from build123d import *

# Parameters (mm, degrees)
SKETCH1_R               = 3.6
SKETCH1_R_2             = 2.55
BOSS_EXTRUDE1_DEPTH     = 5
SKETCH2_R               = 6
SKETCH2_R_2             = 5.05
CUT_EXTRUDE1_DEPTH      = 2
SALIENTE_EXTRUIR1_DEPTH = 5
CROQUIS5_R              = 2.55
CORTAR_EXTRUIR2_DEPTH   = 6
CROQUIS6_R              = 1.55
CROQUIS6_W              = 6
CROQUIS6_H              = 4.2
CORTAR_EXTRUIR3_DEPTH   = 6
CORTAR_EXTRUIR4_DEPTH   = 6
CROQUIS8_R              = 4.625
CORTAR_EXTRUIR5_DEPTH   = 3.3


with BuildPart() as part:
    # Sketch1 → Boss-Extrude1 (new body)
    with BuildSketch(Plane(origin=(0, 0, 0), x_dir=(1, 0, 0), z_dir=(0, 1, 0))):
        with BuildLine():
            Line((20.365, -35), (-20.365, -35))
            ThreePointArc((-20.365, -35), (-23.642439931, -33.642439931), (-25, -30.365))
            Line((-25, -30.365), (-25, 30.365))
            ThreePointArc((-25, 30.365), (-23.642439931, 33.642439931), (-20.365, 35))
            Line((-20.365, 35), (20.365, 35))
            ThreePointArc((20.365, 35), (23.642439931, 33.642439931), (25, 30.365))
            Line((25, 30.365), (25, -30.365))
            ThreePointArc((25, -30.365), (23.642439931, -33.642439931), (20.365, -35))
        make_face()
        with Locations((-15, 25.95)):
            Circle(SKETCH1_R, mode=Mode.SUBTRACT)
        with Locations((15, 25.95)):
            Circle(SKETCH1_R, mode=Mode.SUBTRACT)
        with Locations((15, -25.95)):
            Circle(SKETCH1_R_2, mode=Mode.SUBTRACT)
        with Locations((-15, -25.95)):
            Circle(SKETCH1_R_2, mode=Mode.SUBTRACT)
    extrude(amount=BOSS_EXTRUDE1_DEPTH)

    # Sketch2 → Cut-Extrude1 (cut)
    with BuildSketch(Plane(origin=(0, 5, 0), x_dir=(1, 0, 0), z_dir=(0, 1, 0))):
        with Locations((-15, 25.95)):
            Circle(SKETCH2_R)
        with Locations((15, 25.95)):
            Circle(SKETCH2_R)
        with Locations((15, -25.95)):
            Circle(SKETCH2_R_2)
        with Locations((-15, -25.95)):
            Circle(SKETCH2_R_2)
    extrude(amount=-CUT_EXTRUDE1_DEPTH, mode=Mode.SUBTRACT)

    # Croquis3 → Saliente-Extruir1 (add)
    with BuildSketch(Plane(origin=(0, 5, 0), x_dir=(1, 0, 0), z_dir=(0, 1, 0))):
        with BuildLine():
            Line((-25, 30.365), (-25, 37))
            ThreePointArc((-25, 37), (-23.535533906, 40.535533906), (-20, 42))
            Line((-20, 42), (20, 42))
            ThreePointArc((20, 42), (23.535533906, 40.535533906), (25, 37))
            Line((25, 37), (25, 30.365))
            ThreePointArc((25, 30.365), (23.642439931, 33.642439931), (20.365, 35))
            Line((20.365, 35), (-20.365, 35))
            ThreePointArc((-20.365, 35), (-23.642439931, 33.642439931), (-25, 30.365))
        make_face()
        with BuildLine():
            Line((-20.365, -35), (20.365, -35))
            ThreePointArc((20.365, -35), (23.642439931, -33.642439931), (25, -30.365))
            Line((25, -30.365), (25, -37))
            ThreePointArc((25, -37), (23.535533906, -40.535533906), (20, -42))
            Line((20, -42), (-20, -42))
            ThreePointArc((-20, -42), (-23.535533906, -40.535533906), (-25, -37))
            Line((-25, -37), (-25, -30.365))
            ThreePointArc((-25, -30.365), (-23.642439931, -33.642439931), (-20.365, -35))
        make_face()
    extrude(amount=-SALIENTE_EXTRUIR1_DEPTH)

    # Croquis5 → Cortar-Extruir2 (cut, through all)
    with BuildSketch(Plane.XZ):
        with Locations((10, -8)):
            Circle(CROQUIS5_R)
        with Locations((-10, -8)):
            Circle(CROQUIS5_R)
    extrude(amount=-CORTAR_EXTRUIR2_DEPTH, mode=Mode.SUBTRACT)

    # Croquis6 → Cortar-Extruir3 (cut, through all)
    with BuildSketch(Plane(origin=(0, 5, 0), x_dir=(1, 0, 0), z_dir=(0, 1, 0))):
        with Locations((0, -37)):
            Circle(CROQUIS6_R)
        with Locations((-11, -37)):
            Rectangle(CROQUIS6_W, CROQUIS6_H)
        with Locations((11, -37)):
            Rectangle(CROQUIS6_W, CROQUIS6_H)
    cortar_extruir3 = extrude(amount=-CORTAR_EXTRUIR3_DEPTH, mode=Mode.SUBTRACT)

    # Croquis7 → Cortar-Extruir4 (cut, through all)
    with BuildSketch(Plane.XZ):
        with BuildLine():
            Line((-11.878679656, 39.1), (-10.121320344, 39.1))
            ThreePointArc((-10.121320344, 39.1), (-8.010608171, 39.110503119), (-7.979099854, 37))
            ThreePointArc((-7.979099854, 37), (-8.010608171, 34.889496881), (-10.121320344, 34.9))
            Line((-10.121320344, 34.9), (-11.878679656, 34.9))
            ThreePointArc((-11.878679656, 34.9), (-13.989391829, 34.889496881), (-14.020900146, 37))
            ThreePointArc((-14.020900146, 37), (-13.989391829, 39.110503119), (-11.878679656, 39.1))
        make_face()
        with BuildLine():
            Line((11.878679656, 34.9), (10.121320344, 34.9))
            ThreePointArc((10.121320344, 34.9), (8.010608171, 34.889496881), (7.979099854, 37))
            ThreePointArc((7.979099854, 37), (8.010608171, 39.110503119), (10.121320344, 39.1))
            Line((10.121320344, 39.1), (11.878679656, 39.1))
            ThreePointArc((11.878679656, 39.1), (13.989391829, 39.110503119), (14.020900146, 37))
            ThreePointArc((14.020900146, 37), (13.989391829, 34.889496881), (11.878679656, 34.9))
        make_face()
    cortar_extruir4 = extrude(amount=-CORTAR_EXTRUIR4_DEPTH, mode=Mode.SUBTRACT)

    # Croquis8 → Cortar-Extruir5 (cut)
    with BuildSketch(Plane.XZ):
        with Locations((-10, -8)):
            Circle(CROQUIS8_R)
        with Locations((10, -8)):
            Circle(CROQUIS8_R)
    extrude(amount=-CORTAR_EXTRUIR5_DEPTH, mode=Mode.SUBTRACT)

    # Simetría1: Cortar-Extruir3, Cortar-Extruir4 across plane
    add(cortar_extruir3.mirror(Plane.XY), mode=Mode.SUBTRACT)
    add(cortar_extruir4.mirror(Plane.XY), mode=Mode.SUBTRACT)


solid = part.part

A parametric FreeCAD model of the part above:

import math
import FreeCAD as App
import Part
import Sketcher

V = App.Vector


def add_polygon(sketch, points):
    """Adds a closed chain of lines whose ends are joined by coincident constraints."""
    first, n = sketch.GeometryCount, len(points)
    for a, b in zip(points, points[1:] + points[:1]):
        sketch.addGeometry(Part.LineSegment(App.Vector(*a, 0), App.Vector(*b, 0)), False)
    for i in range(n):
        sketch.addConstraint(Sketcher.Constraint("Coincident", first + i, 2, first + (i + 1) % n, 1))

doc = App.newDocument("Part")
params = doc.addObject("Spreadsheet::Sheet", "Params")
for row, (alias, value) in enumerate([
    ("sketch1_diameter", "5.1 mm"),
    ("sketch1_diameter2", "7.2 mm"),
    ("pad1_length", "5 mm"),
    ("sketch2_diameter", "12 mm"),
    ("sketch2_diameter2", "10.1 mm"),
    ("pocket1_length", "2 mm"),
    ("sketch3_radius", "5 mm"),
    ("sketch3_width", "40 mm"),
    ("pad2_length", "5 mm"),
    ("sketch4_diameter", "5.1 mm"),
    ("sketch5_diameter", "3.1 mm"),
    ("sketch5_width", "6 mm"),
    ("sketch5_height", "4.2 mm"),
    ("sketch6_radius", "1.5 mm"),
    ("sketch7_diameter", "9.25 mm"),
    ("pocket5_length", "3.3 mm"),
], start=1):
    params.set(f"A{row}", alias)
    params.set(f"B{row}", "=" + value)
    params.setAlias(f"B{row}", alias)

body = doc.addObject("PartDesign::Body", "Body")

# Sketch on XZ plane
sketch1 = doc.addObject("Sketcher::SketchObject", "Sketch")
body.addObject(sketch1)
sketch1.AttachmentSupport = (doc.XZ_Plane, [""])
sketch1.MapMode = "FlatFace"
sketch1.addGeometry(Part.LineSegment(V(-20.4, 35, 0), V(20.4, 35, 0)), False)
sketch1.addGeometry(Part.ArcOfCircle(Part.Circle(V(20.4, 30.4, 0), V(0, 0, 1), 4.6), math.radians(0), math.radians(90)), False)
sketch1.addGeometry(Part.LineSegment(V(25, 30.4, 0), V(25, -30.4, 0)), False)
sketch1.addGeometry(Part.ArcOfCircle(Part.Circle(V(20.4, -30.4, 0), V(0, 0, 1), 4.6), math.radians(-90), math.radians(0)), False)
sketch1.addGeometry(Part.LineSegment(V(20.4, -35, 0), V(-20.4, -35, 0)), False)
sketch1.addGeometry(Part.ArcOfCircle(Part.Circle(V(-20.4, -30.4, 0), V(0, 0, 1), 4.6), math.radians(180), math.radians(270)), False)
sketch1.addGeometry(Part.LineSegment(V(-25, -30.4, 0), V(-25, 30.4, 0)), False)
sketch1.addGeometry(Part.ArcOfCircle(Part.Circle(V(-20.4, 30.4, 0), V(0, 0, 1), 4.6), math.radians(90), math.radians(180)), False)
sketch1.addGeometry(Part.Circle(V(15, 25.9, 0), V(0, 0, 1), 2.5), False)
sketch1.addGeometry(Part.Circle(V(-15, 25.9, 0), V(0, 0, 1), 2.5), False)
sketch1.addGeometry(Part.Circle(V(15, -25.9, 0), V(0, 0, 1), 3.6), False)
sketch1.addGeometry(Part.Circle(V(-15, -25.9, 0), V(0, 0, 1), 3.6), False)
sketch1.addConstraint(Sketcher.Constraint("Tangent", 0, 2, 1, 2))
sketch1.addConstraint(Sketcher.Constraint("Tangent", 1, 1, 2, 1))
sketch1.addConstraint(Sketcher.Constraint("Tangent", 2, 2, 3, 2))
sketch1.addConstraint(Sketcher.Constraint("Tangent", 3, 1, 4, 1))
sketch1.addConstraint(Sketcher.Constraint("Tangent", 4, 2, 5, 2))
sketch1.addConstraint(Sketcher.Constraint("Tangent", 5, 1, 6, 1))
sketch1.addConstraint(Sketcher.Constraint("Tangent", 6, 2, 7, 2))
sketch1.addConstraint(Sketcher.Constraint("Tangent", 7, 1, 0, 1))
sketch1.addConstraint(Sketcher.Constraint("Horizontal", 0))
sketch1.addConstraint(Sketcher.Constraint("Vertical", 2))
sketch1.addConstraint(Sketcher.Constraint("Horizontal", 4))
sketch1.addConstraint(Sketcher.Constraint("Vertical", 6))
sketch1.addConstraint(Sketcher.Constraint("Equal", 1, 3))
sketch1.addConstraint(Sketcher.Constraint("Equal", 3, 5))
sketch1.addConstraint(Sketcher.Constraint("Equal", 5, 7))
sketch1.addConstraint(Sketcher.Constraint("Equal", 8, 9))
sketch1.addConstraint(Sketcher.Constraint("Equal", 10, 11))
sketch1.addConstraint(Sketcher.Constraint("Symmetric", 1, 3, 5, 3, -1, 1))
sketch1.addConstraint(Sketcher.Constraint("Symmetric", 9, 3, 10, 3, -1, 1))
sketch1.addConstraint(Sketcher.Constraint("Symmetric", 8, 3, 11, 3, -1, 1))
sketch1.addConstraint(Sketcher.Constraint("Symmetric", 8, 3, 9, 3, -2))
sketch1.addConstraint(Sketcher.Constraint("Diameter", 8, 5.1))
sketch1.addConstraint(Sketcher.Constraint("Diameter", 10, 7.2))
sketch1.addConstraint(Sketcher.Constraint("DistanceX", -1, 1, 8, 3, 15.0))
sketch1.addConstraint(Sketcher.Constraint("DistanceY", -1, 1, 0, 2, 35.0))
sketch1.addConstraint(Sketcher.Constraint("DistanceX", -1, 1, 1, 1, 25.0))
sketch1.addConstraint(Sketcher.Constraint("Radius", 1, 4.635))
sketch1.addConstraint(Sketcher.Constraint("DistanceY", 10, 3, 8, 3, 51.9))
sketch1.setExpression("Constraints[21]", "Params.sketch1_diameter")
sketch1.setExpression("Constraints[22]", "Params.sketch1_diameter2")
pad1 = doc.addObject("PartDesign::Pad", "Pad")
body.addObject(pad1)
pad1.Profile = sketch1
pad1.setExpression("Length", "Params.pad1_length")
pad1.Reversed = True

# Sketch on XZ plane
sketch2 = doc.addObject("Sketcher::SketchObject", "Sketch001")
body.addObject(sketch2)
sketch2.AttachmentSupport = (doc.XZ_Plane, [""])
sketch2.MapMode = "FlatFace"
sketch2.AttachmentOffset = App.Placement(V(0, 0, -5), App.Rotation())
sketch2.addGeometry(Part.Circle(V(-15, -26, 0), V(0, 0, 1), 6), False)
sketch2.addGeometry(Part.Circle(V(15, -26, 0), V(0, 0, 1), 6), False)
sketch2.addGeometry(Part.Circle(V(15, 26, 0), V(0, 0, 1), 5), False)
sketch2.addGeometry(Part.Circle(V(-15, 26, 0), V(0, 0, 1), 5), False)
sketch2.addConstraint(Sketcher.Constraint("Equal", 0, 1))
sketch2.addConstraint(Sketcher.Constraint("Equal", 2, 3))
sketch2.addConstraint(Sketcher.Constraint("Symmetric", 0, 3, 2, 3, -1, 1))
sketch2.addConstraint(Sketcher.Constraint("Symmetric", 1, 3, 3, 3, -1, 1))
sketch2.addConstraint(Sketcher.Constraint("Symmetric", 0, 3, 1, 3, -2))
sketch2.addConstraint(Sketcher.Constraint("Diameter", 0, 12.0))
sketch2.addConstraint(Sketcher.Constraint("Diameter", 2, 10.1))
sketch2.addConstraint(Sketcher.Constraint("DistanceX", 0, 3, -1, 1, 15.0))
sketch2.addConstraint(Sketcher.Constraint("DistanceY", 1, 3, 2, 3, 51.9))
sketch2.setExpression("Constraints[5]", "Params.sketch2_diameter")
sketch2.setExpression("Constraints[6]", "Params.sketch2_diameter2")
pocket1 = doc.addObject("PartDesign::Pocket", "Pocket")
body.addObject(pocket1)
pocket1.Profile = sketch2
pocket1.setExpression("Length", "Params.pocket1_length")
pocket1.Reversed = True

# Sketch on XZ plane
sketch3 = doc.addObject("Sketcher::SketchObject", "Sketch002")
body.addObject(sketch3)
sketch3.AttachmentSupport = (doc.XZ_Plane, [""])
sketch3.MapMode = "FlatFace"
sketch3.AttachmentOffset = App.Placement(V(0, 0, -5), App.Rotation())
sketch3.addGeometry(Part.LineSegment(V(-25, -37, 0), V(-25, -30.4, 0)), False)
sketch3.addGeometry(Part.ArcOfCircle(Part.Circle(V(-20.4, -30.4, 0), V(0, 0, 1), 4.6), math.radians(180), math.radians(270)), False)
sketch3.addGeometry(Part.LineSegment(V(-20.4, -35, 0), V(20.4, -35, 0)), False)
sketch3.addGeometry(Part.ArcOfCircle(Part.Circle(V(20.4, -30.4, 0), V(0, 0, 1), 4.6), math.radians(-90), math.radians(0)), False)
sketch3.addGeometry(Part.LineSegment(V(25, -30.4, 0), V(25, -37, 0)), False)
sketch3.addGeometry(Part.ArcOfCircle(Part.Circle(V(20, -37, 0), V(0, 0, 1), 5), math.radians(-90), math.radians(0)), False)
sketch3.addGeometry(Part.LineSegment(V(20, -42, 0), V(-20, -42, 0)), False)
sketch3.addGeometry(Part.ArcOfCircle(Part.Circle(V(-20, -37, 0), V(0, 0, 1), 5), math.radians(180), math.radians(270)), False)
sketch3.addGeometry(Part.LineSegment(V(20.4, 35, 0), V(-20.4, 35, 0)), False)
sketch3.addGeometry(Part.ArcOfCircle(Part.Circle(V(-20.4, 30.4, 0), V(0, 0, 1), 4.6), math.radians(90), math.radians(180)), False)
sketch3.addGeometry(Part.LineSegment(V(-25, 30.4, 0), V(-25, 37, 0)), False)
sketch3.addGeometry(Part.ArcOfCircle(Part.Circle(V(-20, 37, 0), V(0, 0, 1), 5), math.radians(90), math.radians(180)), False)
sketch3.addGeometry(Part.LineSegment(V(-20, 42, 0), V(20, 42, 0)), False)
sketch3.addGeometry(Part.ArcOfCircle(Part.Circle(V(20, 37, 0), V(0, 0, 1), 5), math.radians(0), math.radians(90)), False)
sketch3.addGeometry(Part.LineSegment(V(25, 37, 0), V(25, 30.4, 0)), False)
sketch3.addGeometry(Part.ArcOfCircle(Part.Circle(V(20.4, 30.4, 0), V(0, 0, 1), 4.6), math.radians(0), math.radians(90)), False)
sketch3.addConstraint(Sketcher.Constraint("Tangent", 0, 2, 1, 1))
sketch3.addConstraint(Sketcher.Constraint("Tangent", 1, 2, 2, 1))
sketch3.addConstraint(Sketcher.Constraint("Tangent", 2, 2, 3, 1))
sketch3.addConstraint(Sketcher.Constraint("Tangent", 3, 2, 4, 1))
sketch3.addConstraint(Sketcher.Constraint("Tangent", 4, 2, 5, 2))
sketch3.addConstraint(Sketcher.Constraint("Tangent", 5, 1, 6, 1))
sketch3.addConstraint(Sketcher.Constraint("Tangent", 6, 2, 7, 2))
sketch3.addConstraint(Sketcher.Constraint("Tangent", 7, 1, 0, 1))
sketch3.addConstraint(Sketcher.Constraint("Tangent", 8, 2, 9, 1))
sketch3.addConstraint(Sketcher.Constraint("Tangent", 9, 2, 10, 1))
sketch3.addConstraint(Sketcher.Constraint("Tangent", 10, 2, 11, 2))
sketch3.addConstraint(Sketcher.Constraint("Tangent", 11, 1, 12, 1))
sketch3.addConstraint(Sketcher.Constraint("Tangent", 12, 2, 13, 2))
sketch3.addConstraint(Sketcher.Constraint("Tangent", 13, 1, 14, 1))
sketch3.addConstraint(Sketcher.Constraint("Tangent", 14, 2, 15, 1))
sketch3.addConstraint(Sketcher.Constraint("Tangent", 15, 2, 8, 1))
sketch3.addConstraint(Sketcher.Constraint("Vertical", 0))
sketch3.addConstraint(Sketcher.Constraint("Horizontal", 2))
sketch3.addConstraint(Sketcher.Constraint("Vertical", 4))
sketch3.addConstraint(Sketcher.Constraint("Horizontal", 6))
sketch3.addConstraint(Sketcher.Constraint("Horizontal", 8))
sketch3.addConstraint(Sketcher.Constraint("Vertical", 10))
sketch3.addConstraint(Sketcher.Constraint("Horizontal", 12))
sketch3.addConstraint(Sketcher.Constraint("Vertical", 14))
sketch3.addConstraint(Sketcher.Constraint("Equal", 1, 3))
sketch3.addConstraint(Sketcher.Constraint("Equal", 5, 7))
sketch3.addConstraint(Sketcher.Constraint("Equal", 3, 9))
sketch3.addConstraint(Sketcher.Constraint("Equal", 7, 11))
sketch3.addConstraint(Sketcher.Constraint("Equal", 11, 13))
sketch3.addConstraint(Sketcher.Constraint("Equal", 9, 15))
sketch3.addConstraint(Sketcher.Constraint("Symmetric", 3, 3, 9, 3, -1, 1))
sketch3.addConstraint(Sketcher.Constraint("Symmetric", 7, 3, 13, 3, -1, 1))
sketch3.addConstraint(Sketcher.Constraint("Vertical", 1, 3, 9, 3))
sketch3.addConstraint(Sketcher.Constraint("Radius", 5, 5.0))
sketch3.addConstraint(Sketcher.Constraint("DistanceX", 6, 2, 6, 1, 40.0))
sketch3.addConstraint(Sketcher.Constraint("DistanceY", 5, 3, -1, 1, 37.0))
sketch3.addConstraint(Sketcher.Constraint("DistanceY", 1, 2, -1, 1, 35.0))
sketch3.addConstraint(Sketcher.Constraint("Radius", 1, 4.635))
sketch3.setExpression("Constraints[33]", "Params.sketch3_radius")
sketch3.setExpression("Constraints[34]", "Params.sketch3_width")
pad2 = doc.addObject("PartDesign::Pad", "Pad001")
body.addObject(pad2)
pad2.Profile = sketch3
pad2.setExpression("Length", "Params.pad2_length")

# Sketch on XZ plane
sketch4 = doc.addObject("Sketcher::SketchObject", "Sketch003")
body.addObject(sketch4)
sketch4.AttachmentSupport = (doc.XZ_Plane, [""])
sketch4.MapMode = "FlatFace"
sketch4.addGeometry(Part.Circle(V(10, -8, 0), V(0, 0, 1), 2.5), False)
sketch4.addGeometry(Part.Circle(V(-10, -8, 0), V(0, 0, 1), 2.5), False)
sketch4.addConstraint(Sketcher.Constraint("Equal", 0, 1))
sketch4.addConstraint(Sketcher.Constraint("Symmetric", 0, 3, 1, 3, -2))
sketch4.addConstraint(Sketcher.Constraint("Diameter", 0, 5.1))
sketch4.addConstraint(Sketcher.Constraint("DistanceX", -1, 1, 0, 3, 10.0))
sketch4.addConstraint(Sketcher.Constraint("DistanceY", 0, 3, -1, 1, 8.0))
sketch4.setExpression("Constraints[2]", "Params.sketch4_diameter")
pocket2 = doc.addObject("PartDesign::Pocket", "Pocket001")
body.addObject(pocket2)
pocket2.Profile = sketch4
pocket2.Type = "ThroughAll"

# Sketch on XZ plane
sketch5 = doc.addObject("Sketcher::SketchObject", "Sketch004")
body.addObject(sketch5)
sketch5.AttachmentSupport = (doc.XZ_Plane, [""])
sketch5.MapMode = "FlatFace"
sketch5.AttachmentOffset = App.Placement(V(0, 0, -5), App.Rotation())
sketch5.addGeometry(Part.Circle(V(0, 37, 0), V(0, 0, 1), 1.6), False)  # 0
add_polygon(sketch5, [(-14, 34.9), (-14, 39.1), (-8, 39.1), (-8, 34.9)])  # lines 1-4
add_polygon(sketch5, [(8, 34.9), (8, 39.1), (14, 39.1), (14, 34.9)])  # lines 5-8
sketch5.addConstraint(Sketcher.Constraint("Vertical", 1))
sketch5.addConstraint(Sketcher.Constraint("Horizontal", 2))
sketch5.addConstraint(Sketcher.Constraint("Vertical", 3))
sketch5.addConstraint(Sketcher.Constraint("Horizontal", 4))
sketch5.addConstraint(Sketcher.Constraint("Vertical", 5))
sketch5.addConstraint(Sketcher.Constraint("Horizontal", 6))
sketch5.addConstraint(Sketcher.Constraint("Vertical", 7))
sketch5.addConstraint(Sketcher.Constraint("Horizontal", 8))
sketch5.addConstraint(Sketcher.Constraint("Symmetric", 2, 2, 5, 2, -2))
sketch5.addConstraint(Sketcher.Constraint("Symmetric", 4, 2, 7, 2, -2))
sketch5.addConstraint(Sketcher.Constraint("PointOnObject", 0, 3, -2))
sketch5.addConstraint(Sketcher.Constraint("Diameter", 0, 3.1))
sketch5.addConstraint(Sketcher.Constraint("DistanceX", 2, 1, 2, 2, 6.0))
sketch5.addConstraint(Sketcher.Constraint("DistanceY", 1, 1, 1, 2, 4.2))
sketch5.addConstraint(Sketcher.Constraint("DistanceY", -1, 1, 0, 3, 37.0))
sketch5.addConstraint(Sketcher.Constraint("DistanceX", 1, 2, -1, 1, 14.0))
sketch5.addConstraint(Sketcher.Constraint("DistanceY", -1, 1, 1, 2, 39.1))
sketch5.setExpression("Constraints[19]", "Params.sketch5_diameter")
sketch5.setExpression("Constraints[20]", "Params.sketch5_width")
sketch5.setExpression("Constraints[21]", "Params.sketch5_height")
pocket3 = doc.addObject("PartDesign::Pocket", "Pocket002")
body.addObject(pocket3)
pocket3.Profile = sketch5
pocket3.Type = "ThroughAll"
pocket3.Reversed = True

# Sketch on XZ plane
sketch6 = doc.addObject("Sketcher::SketchObject", "Sketch005")
body.addObject(sketch6)
sketch6.AttachmentSupport = (doc.XZ_Plane, [""])
sketch6.MapMode = "FlatFace"
sketch6.addGeometry(Part.LineSegment(V(-10.1, 39.1, 0), V(-11.9, 39.1, 0)), False)
sketch6.addGeometry(Part.ArcOfCircle(Part.Circle(V(-12.9, 38, 0), V(0, 0, 1), 1.5), math.radians(45), math.radians(224)), False)
sketch6.addGeometry(Part.ArcOfCircle(Part.Circle(V(-12.9, 36, 0), V(0, 0, 1), 1.5), math.radians(136), math.radians(315)), False)
sketch6.addGeometry(Part.LineSegment(V(-11.9, 34.9, 0), V(-10.1, 34.9, 0)), False)
sketch6.addGeometry(Part.ArcOfCircle(Part.Circle(V(-9.1, 36, 0), V(0, 0, 1), 1.5), math.radians(-135), math.radians(44)), False)
sketch6.addGeometry(Part.ArcOfCircle(Part.Circle(V(-9.1, 38, 0), V(0, 0, 1), 1.5), math.radians(-44), math.radians(135)), False)
sketch6.addGeometry(Part.LineSegment(V(10.1, 34.9, 0), V(11.9, 34.9, 0)), False)
sketch6.addGeometry(Part.ArcOfCircle(Part.Circle(V(12.9, 36, 0), V(0, 0, 1), 1.5), math.radians(-135), math.radians(44)), False)
sketch6.addGeometry(Part.ArcOfCircle(Part.Circle(V(12.9, 38, 0), V(0, 0, 1), 1.5), math.radians(-44), math.radians(135)), False)
sketch6.addGeometry(Part.LineSegment(V(11.9, 39.1, 0), V(10.1, 39.1, 0)), False)
sketch6.addGeometry(Part.ArcOfCircle(Part.Circle(V(9.1, 38, 0), V(0, 0, 1), 1.5), math.radians(45), math.radians(224)), False)
sketch6.addGeometry(Part.ArcOfCircle(Part.Circle(V(9.1, 36, 0), V(0, 0, 1), 1.5), math.radians(136), math.radians(315)), False)
sketch6.addConstraint(Sketcher.Constraint("Coincident", 0, 2, 1, 1))
sketch6.addConstraint(Sketcher.Constraint("Coincident", 1, 2, 2, 1))
sketch6.addConstraint(Sketcher.Constraint("Coincident", 2, 2, 3, 1))
sketch6.addConstraint(Sketcher.Constraint("Coincident", 3, 2, 4, 1))
sketch6.addConstraint(Sketcher.Constraint("Coincident", 4, 2, 5, 1))
sketch6.addConstraint(Sketcher.Constraint("Coincident", 5, 2, 0, 1))
sketch6.addConstraint(Sketcher.Constraint("Coincident", 6, 2, 7, 1))
sketch6.addConstraint(Sketcher.Constraint("Coincident", 7, 2, 8, 1))
sketch6.addConstraint(Sketcher.Constraint("Coincident", 8, 2, 9, 1))
sketch6.addConstraint(Sketcher.Constraint("Coincident", 9, 2, 10, 1))
sketch6.addConstraint(Sketcher.Constraint("Coincident", 10, 2, 11, 1))
sketch6.addConstraint(Sketcher.Constraint("Coincident", 11, 2, 6, 1))
sketch6.addConstraint(Sketcher.Constraint("Horizontal", 0))
sketch6.addConstraint(Sketcher.Constraint("Horizontal", 3))
sketch6.addConstraint(Sketcher.Constraint("Horizontal", 6))
sketch6.addConstraint(Sketcher.Constraint("Horizontal", 9))
sketch6.addConstraint(Sketcher.Constraint("Equal", 1, 2))
sketch6.addConstraint(Sketcher.Constraint("Equal", 2, 4))
sketch6.addConstraint(Sketcher.Constraint("Equal", 4, 5))
sketch6.addConstraint(Sketcher.Constraint("Equal", 5, 7))
sketch6.addConstraint(Sketcher.Constraint("Equal", 7, 8))
sketch6.addConstraint(Sketcher.Constraint("Equal", 8, 10))
sketch6.addConstraint(Sketcher.Constraint("Equal", 10, 11))
sketch6.addConstraint(Sketcher.Constraint("Symmetric", 2, 3, 7, 3, -2))
sketch6.addConstraint(Sketcher.Constraint("Symmetric", 1, 3, 8, 3, -2))
sketch6.addConstraint(Sketcher.Constraint("Symmetric", 5, 3, 10, 3, -2))
sketch6.addConstraint(Sketcher.Constraint("Symmetric", 4, 3, 11, 3, -2))
sketch6.addConstraint(Sketcher.Constraint("Horizontal", 2, 3, 4, 3))
sketch6.addConstraint(Sketcher.Constraint("Horizontal", 1, 3, 5, 3))
sketch6.addConstraint(Sketcher.Constraint("Horizontal", 1, 2, 4, 2))
sketch6.addConstraint(Sketcher.Constraint("Horizontal", 3, 2, 6, 2))
sketch6.addConstraint(Sketcher.Constraint("Horizontal", 5, 2, 8, 2))
sketch6.addConstraint(Sketcher.Constraint("Vertical", 1, 3, 2, 3))
sketch6.addConstraint(Sketcher.Constraint("Vertical", 0, 2, 2, 2))
sketch6.addConstraint(Sketcher.Constraint("Radius", 1, 1.5))
sketch6.addConstraint(Sketcher.Constraint("DistanceY", -1, 1, 1, 2, 37.0))
sketch6.addConstraint(Sketcher.Constraint("DistanceX", 4, 3, 7, 3, 22.0))
sketch6.addConstraint(Sketcher.Constraint("DistanceY", -1, 1, 0, 2, 39.1))
sketch6.addConstraint(Sketcher.Constraint("DistanceX", 0, 2, 0, 1, 1.757359))
sketch6.addConstraint(Sketcher.Constraint("DistanceX", 1, 2, -1, 1, 14.0209))
sketch6.setExpression("Constraints[34]", "Params.sketch6_radius")
pocket4 = doc.addObject("PartDesign::Pocket", "Pocket003")
body.addObject(pocket4)
pocket4.Profile = sketch6
pocket4.Type = "ThroughAll"

# Sketch on XZ plane
sketch7 = doc.addObject("Sketcher::SketchObject", "Sketch006")
body.addObject(sketch7)
sketch7.AttachmentSupport = (doc.XZ_Plane, [""])
sketch7.MapMode = "FlatFace"
sketch7.addGeometry(Part.Circle(V(-10, -8, 0), V(0, 0, 1), 4.6), False)
sketch7.addGeometry(Part.Circle(V(10, -8, 0), V(0, 0, 1), 4.6), False)
sketch7.addConstraint(Sketcher.Constraint("Equal", 0, 1))
sketch7.addConstraint(Sketcher.Constraint("Symmetric", 0, 3, 1, 3, -2))
sketch7.addConstraint(Sketcher.Constraint("Diameter", 0, 9.25))
sketch7.addConstraint(Sketcher.Constraint("DistanceX", 0, 3, -1, 1, 10.0))
sketch7.addConstraint(Sketcher.Constraint("DistanceY", 0, 3, -1, 1, 8.0))
sketch7.setExpression("Constraints[2]", "Params.sketch7_diameter")
pocket5 = doc.addObject("PartDesign::Pocket", "Pocket004")
body.addObject(pocket5)
pocket5.Profile = sketch7
pocket5.setExpression("Length", "Params.pocket5_length")
doc.recompute()

mirrored = doc.addObject("PartDesign::Mirrored", "Mirrored")
body.addObject(mirrored)
mirrored.Originals = [pocket3, pocket4]
mirrored.MirrorPlane = (doc.XY_Plane, [""])
body.Tip = mirrored

doc.recompute()
